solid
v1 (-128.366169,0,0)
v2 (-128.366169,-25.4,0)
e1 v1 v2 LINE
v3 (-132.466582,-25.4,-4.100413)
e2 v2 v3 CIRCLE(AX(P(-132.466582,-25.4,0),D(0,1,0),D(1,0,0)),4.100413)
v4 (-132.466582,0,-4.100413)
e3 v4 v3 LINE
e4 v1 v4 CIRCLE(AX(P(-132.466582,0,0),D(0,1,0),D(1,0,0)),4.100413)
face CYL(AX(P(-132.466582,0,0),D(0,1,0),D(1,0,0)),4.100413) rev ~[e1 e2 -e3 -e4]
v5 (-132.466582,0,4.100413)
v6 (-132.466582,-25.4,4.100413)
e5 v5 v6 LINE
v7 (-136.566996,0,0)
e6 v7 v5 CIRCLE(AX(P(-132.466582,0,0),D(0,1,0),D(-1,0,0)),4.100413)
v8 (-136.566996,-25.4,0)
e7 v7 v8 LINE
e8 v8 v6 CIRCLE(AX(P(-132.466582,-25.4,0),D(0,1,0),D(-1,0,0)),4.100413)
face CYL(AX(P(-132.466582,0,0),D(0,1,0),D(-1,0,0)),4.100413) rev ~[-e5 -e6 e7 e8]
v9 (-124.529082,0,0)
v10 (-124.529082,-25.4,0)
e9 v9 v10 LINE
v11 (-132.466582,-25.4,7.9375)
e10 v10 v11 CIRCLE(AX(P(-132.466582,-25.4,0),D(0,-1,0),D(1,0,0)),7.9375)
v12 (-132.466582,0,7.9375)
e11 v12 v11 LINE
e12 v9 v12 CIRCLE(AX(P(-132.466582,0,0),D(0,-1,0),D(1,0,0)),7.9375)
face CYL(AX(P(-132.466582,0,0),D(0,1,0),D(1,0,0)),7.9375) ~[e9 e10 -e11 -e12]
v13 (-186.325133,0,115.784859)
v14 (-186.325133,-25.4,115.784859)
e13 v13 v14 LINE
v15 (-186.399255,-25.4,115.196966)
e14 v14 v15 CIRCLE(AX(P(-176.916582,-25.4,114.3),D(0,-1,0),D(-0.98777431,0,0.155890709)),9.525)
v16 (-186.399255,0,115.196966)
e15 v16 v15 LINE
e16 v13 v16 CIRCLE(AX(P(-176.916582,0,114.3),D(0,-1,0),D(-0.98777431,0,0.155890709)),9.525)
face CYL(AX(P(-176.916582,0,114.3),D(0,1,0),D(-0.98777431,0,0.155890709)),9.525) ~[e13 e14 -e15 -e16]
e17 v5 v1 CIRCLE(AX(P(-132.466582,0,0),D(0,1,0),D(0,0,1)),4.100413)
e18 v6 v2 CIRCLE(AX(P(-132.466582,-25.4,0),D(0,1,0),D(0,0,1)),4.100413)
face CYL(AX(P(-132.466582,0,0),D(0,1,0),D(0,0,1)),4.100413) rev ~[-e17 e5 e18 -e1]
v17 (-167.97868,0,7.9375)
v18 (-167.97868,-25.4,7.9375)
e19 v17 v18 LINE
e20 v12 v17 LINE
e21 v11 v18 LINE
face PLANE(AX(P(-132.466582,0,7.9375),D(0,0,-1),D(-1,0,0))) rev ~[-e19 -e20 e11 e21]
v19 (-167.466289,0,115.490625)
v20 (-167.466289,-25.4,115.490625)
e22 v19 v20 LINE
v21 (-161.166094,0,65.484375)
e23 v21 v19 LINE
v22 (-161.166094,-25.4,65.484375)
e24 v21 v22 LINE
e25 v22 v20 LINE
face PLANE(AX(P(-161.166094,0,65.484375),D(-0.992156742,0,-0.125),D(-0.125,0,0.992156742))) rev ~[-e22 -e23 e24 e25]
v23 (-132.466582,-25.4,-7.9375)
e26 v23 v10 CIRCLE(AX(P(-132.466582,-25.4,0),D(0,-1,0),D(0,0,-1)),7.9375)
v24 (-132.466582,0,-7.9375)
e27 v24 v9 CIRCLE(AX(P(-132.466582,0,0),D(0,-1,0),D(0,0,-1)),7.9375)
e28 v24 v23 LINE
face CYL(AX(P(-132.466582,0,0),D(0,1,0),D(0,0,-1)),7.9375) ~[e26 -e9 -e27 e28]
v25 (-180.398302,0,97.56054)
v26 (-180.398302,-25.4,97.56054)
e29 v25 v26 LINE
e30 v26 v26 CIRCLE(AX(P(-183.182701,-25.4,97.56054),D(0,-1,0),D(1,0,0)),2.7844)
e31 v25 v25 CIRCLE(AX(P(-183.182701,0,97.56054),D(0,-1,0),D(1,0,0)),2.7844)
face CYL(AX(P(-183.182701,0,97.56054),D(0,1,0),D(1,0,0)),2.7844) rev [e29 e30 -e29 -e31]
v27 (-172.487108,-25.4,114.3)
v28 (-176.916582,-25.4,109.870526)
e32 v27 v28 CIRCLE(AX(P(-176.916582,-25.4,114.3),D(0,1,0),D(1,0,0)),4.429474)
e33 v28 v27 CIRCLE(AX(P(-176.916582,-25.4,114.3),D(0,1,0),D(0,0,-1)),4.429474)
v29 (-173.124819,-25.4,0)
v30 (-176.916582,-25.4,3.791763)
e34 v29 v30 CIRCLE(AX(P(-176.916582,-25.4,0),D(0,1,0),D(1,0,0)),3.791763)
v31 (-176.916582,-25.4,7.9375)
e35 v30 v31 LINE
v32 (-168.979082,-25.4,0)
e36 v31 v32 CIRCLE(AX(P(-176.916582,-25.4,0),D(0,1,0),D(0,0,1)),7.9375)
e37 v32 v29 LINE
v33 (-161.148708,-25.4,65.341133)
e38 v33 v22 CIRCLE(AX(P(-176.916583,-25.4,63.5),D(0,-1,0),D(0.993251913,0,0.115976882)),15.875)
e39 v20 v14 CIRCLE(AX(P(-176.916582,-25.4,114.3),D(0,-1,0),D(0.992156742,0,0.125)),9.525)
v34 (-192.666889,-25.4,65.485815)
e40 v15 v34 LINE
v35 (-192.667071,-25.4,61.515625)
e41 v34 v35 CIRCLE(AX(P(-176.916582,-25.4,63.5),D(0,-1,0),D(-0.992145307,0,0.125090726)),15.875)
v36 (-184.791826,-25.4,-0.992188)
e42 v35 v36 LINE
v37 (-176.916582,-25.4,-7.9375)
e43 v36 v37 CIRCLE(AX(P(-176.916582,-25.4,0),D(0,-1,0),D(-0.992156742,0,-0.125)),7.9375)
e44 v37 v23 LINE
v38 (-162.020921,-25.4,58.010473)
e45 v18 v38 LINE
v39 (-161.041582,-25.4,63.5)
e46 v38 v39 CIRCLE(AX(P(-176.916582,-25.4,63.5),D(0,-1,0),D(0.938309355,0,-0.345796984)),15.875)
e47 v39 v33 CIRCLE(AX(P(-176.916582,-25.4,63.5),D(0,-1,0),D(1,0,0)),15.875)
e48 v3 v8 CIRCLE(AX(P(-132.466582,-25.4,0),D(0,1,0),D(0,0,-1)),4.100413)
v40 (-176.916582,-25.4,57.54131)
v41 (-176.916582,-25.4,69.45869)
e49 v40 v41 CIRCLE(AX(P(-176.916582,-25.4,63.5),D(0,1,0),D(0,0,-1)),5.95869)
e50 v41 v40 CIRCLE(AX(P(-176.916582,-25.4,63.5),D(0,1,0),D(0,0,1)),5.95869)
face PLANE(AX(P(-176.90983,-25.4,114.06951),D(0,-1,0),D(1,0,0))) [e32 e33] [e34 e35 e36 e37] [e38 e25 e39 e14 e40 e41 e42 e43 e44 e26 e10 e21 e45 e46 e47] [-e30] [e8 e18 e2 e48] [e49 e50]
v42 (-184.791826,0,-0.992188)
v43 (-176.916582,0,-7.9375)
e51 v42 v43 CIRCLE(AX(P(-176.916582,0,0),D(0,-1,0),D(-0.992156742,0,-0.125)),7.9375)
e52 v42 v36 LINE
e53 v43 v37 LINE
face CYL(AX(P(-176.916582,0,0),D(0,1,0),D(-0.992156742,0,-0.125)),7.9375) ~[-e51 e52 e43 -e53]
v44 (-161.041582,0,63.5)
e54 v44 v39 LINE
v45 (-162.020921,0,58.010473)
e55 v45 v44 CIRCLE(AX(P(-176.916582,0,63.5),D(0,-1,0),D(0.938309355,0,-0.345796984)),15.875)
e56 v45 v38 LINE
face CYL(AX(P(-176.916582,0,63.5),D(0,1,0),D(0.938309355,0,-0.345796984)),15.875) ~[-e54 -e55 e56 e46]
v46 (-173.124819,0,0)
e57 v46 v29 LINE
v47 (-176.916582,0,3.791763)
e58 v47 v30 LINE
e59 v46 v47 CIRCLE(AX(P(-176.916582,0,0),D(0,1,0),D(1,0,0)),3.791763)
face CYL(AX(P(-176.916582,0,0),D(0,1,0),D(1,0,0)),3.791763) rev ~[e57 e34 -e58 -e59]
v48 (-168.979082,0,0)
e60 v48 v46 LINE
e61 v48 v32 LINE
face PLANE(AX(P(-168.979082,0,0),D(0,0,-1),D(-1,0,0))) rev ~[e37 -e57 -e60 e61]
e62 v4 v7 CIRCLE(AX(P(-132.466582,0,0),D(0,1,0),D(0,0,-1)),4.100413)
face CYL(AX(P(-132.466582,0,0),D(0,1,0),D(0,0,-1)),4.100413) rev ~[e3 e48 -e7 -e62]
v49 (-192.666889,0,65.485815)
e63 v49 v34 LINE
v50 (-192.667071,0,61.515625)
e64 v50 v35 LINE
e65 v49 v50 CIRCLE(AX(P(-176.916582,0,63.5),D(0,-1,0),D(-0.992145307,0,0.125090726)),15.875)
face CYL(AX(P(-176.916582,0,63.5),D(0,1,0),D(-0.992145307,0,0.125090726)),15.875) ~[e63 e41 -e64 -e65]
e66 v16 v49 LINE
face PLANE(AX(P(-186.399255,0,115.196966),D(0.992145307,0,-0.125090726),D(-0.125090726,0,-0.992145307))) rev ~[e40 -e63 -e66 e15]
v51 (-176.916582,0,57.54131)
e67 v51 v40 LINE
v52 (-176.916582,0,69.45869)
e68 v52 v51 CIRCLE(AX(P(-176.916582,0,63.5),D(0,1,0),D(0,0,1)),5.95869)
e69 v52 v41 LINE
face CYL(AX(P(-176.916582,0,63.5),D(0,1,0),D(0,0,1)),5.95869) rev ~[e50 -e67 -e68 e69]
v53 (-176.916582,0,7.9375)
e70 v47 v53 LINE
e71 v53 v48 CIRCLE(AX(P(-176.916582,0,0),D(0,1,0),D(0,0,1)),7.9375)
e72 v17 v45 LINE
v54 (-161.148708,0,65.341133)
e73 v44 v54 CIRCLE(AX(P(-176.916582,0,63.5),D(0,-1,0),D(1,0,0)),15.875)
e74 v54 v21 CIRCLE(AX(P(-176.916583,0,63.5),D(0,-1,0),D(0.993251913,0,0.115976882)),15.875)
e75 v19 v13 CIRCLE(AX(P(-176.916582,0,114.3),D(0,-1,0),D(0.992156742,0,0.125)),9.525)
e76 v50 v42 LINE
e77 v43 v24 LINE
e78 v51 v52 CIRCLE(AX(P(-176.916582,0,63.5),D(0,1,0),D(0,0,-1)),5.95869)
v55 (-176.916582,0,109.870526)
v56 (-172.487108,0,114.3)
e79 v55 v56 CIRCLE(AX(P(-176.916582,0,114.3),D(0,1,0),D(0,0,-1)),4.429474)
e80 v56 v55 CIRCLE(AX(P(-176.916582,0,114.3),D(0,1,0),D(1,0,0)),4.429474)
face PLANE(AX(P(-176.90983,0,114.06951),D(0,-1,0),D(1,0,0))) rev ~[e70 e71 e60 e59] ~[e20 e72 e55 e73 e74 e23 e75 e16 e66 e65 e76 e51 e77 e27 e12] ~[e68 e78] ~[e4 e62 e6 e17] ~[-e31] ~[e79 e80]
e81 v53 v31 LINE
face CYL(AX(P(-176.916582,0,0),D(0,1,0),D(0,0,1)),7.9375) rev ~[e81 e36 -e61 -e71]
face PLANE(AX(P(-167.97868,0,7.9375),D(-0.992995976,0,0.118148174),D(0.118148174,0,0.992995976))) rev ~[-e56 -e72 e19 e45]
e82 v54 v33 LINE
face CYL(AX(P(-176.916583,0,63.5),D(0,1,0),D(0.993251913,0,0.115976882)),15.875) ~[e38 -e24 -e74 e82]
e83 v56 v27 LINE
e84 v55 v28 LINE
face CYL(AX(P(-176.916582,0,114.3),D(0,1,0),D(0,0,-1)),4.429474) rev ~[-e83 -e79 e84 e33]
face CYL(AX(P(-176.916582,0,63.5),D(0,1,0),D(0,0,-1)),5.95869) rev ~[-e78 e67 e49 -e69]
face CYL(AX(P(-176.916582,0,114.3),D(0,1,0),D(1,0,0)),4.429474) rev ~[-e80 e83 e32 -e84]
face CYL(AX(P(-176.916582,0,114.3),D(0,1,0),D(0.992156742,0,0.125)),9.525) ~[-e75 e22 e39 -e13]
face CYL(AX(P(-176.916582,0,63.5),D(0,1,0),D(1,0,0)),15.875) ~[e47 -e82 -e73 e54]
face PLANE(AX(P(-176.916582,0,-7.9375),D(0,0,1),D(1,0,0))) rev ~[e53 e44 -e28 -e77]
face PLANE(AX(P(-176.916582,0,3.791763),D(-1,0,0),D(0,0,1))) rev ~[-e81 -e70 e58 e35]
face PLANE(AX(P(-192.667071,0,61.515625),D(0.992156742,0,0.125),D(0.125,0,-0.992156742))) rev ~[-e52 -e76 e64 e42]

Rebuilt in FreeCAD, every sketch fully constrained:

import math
import FreeCAD as App
import Part
import Sketcher

V = App.Vector
Q = App.Units.Quantity

doc = App.newDocument("Part")
params = doc.addObject("Spreadsheet::Sheet", "Params")
for row, (alias, value) in enumerate([
    ("sketch1_radius", "0.3125 in"),
    ("sketch1_radius2", "0.625 in"),
    ("sketch1_radius3", "0.375 in"),
    ("sketch1_width", "1.75 in"),
    ("pad1_length", "1 in"),
], start=1):
    params.set(f"A{row}", alias)
    params.set(f"B{row}", "=" + value)
    params.setAlias(f"B{row}", alias)

body = doc.addObject("PartDesign::Body", "Body")

# Sketch on XZ plane
sketch1 = body.newObject("Sketcher::SketchObject", "Sketch")
sketch1.AttachmentSupport = (doc.getObject("XZ_Plane"), [""])
sketch1.MapMode = "FlatFace"
sketch1.addGeometry([
    Part.LineSegment(V(-176.92, -7.94, 0), V(-132.47, -7.94, 0)),  # 0
    Part.ArcOfCircle(Part.Circle(V(-132.47, 0, 0), V(0, 0, 1), 7.94), math.radians(-90), math.radians(0)),  # 1
    Part.ArcOfCircle(Part.Circle(V(-132.47, 0, 0), V(0, 0, 1), 7.94), math.radians(0), math.radians(90)),  # 2
    Part.LineSegment(V(-132.47, 7.94, 0), V(-167.98, 7.94, 0)),  # 3
    Part.LineSegment(V(-167.98, 7.94, 0), V(-162.02, 58.01, 0)),  # 4
    Part.ArcOfCircle(Part.Circle(V(-176.92, 63.5, 0), V(0, 0, 1), 15.88), math.radians(-20), math.radians(0)),  # 5
    Part.ArcOfCircle(Part.Circle(V(-176.92, 63.5, 0), V(0, 0, 1), 15.88), math.radians(0), math.radians(6.66)),  # 6
    Part.ArcOfCircle(Part.Circle(V(-176.92, 63.5, 0), V(0, 0, 1), 15.88), math.radians(6.66), math.radians(7.18)),  # 7
    Part.LineSegment(V(-161.17, 65.48, 0), V(-167.47, 115.49, 0)),  # 8
    Part.ArcOfCircle(Part.Circle(V(-176.92, 114.3, 0), V(0, 0, 1), 9.53), math.radians(7), math.radians(171)),  # 9
    Part.ArcOfCircle(Part.Circle(V(-176.92, 114.3, 0), V(0, 0, 1), 9.52), math.radians(171.03), math.radians(174.6)),  # 10
    Part.LineSegment(V(-186.4, 115.2, 0), V(-192.67, 65.49, 0)),  # 11
    Part.ArcOfCircle(Part.Circle(V(-176.92, 63.5, 0), V(0, 0, 1), 15.88), math.radians(172.81), math.radians(187.18)),  # 12
    Part.LineSegment(V(-192.67, 61.52, 0), V(-184.79, -0.99, 0)),  # 13
    Part.ArcOfCircle(Part.Circle(V(-176.92, 0, 0), V(0, 0, 1), 7.94), math.radians(-173), math.radians(-90)),  # 14
    Part.ArcOfCircle(Part.Circle(V(-176.92, 0, 0), V(0, 0, 1), 7.94), math.radians(0), math.radians(90)),  # 15
    Part.LineSegment(V(-168.98, 0, 0), V(-173.12, 0, 0)),  # 16
    Part.ArcOfCircle(Part.Circle(V(-176.92, 0, 0), V(0, 0, 1), 3.79), math.radians(90), math.radians(360)),  # 17
    Part.LineSegment(V(-176.92, 3.79, 0), V(-176.92, 7.94, 0)),  # 18
    Part.ArcOfCircle(Part.Circle(V(-132.47, 0, 0), V(0, 0, 1), 4.1), math.radians(-90), math.radians(0)),  # 19
    Part.ArcOfCircle(Part.Circle(V(-132.47, 0, 0), V(0, 0, 1), 4.1), math.radians(180), math.radians(270)),  # 20
    Part.ArcOfCircle(Part.Circle(V(-132.47, 0, 0), V(0, 0, 1), 4.1), math.radians(90), math.radians(180)),  # 21
    Part.ArcOfCircle(Part.Circle(V(-132.47, 0, 0), V(0, 0, 1), 4.1), math.radians(0), math.radians(90)),  # 22
    Part.ArcOfCircle(Part.Circle(V(-176.92, 63.5, 0), V(0, 0, 1), 5.96), math.radians(-90), math.radians(90)),  # 23
    Part.ArcOfCircle(Part.Circle(V(-176.92, 63.5, 0), V(0, 0, 1), 5.96), math.radians(90), math.radians(270)),  # 24
    Part.Circle(V(-183.18, 97.56, 0), V(0, 0, 1), 2.78),  # 25
    Part.ArcOfCircle(Part.Circle(V(-176.92, 114.3, 0), V(0, 0, 1), 4.43), math.radians(0), math.radians(270)),  # 26
    Part.ArcOfCircle(Part.Circle(V(-176.92, 114.3, 0), V(0, 0, 1), 4.43), math.radians(-90), math.radians(0)),  # 27
], False)
sketch1.addConstraint([
    Sketcher.Constraint("Tangent", 0, 2, 1, 1),
    Sketcher.Constraint("Tangent", 1, 2, 2, 1),
    Sketcher.Constraint("Tangent", 2, 2, 3, 1),
    Sketcher.Constraint("Coincident", 3, 2, 4, 1),
    Sketcher.Constraint("Coincident", 4, 2, 5, 1),
    Sketcher.Constraint("Tangent", 5, 2, 6, 1),
    Sketcher.Constraint("Tangent", 6, 2, 7, 1),
    Sketcher.Constraint("Tangent", 7, 2, 8, 1),
    Sketcher.Constraint("Tangent", 8, 2, 9, 1),
    Sketcher.Constraint("Tangent", 9, 2, 10, 1),
    Sketcher.Constraint("Coincident", 10, 2, 11, 1),
    Sketcher.Constraint("Tangent", 11, 2, 12, 1),
    Sketcher.Constraint("Tangent", 12, 2, 13, 1),
    Sketcher.Constraint("Tangent", 13, 2, 14, 1),
    Sketcher.Constraint("Tangent", 14, 2, 0, 1),
    Sketcher.Constraint("Coincident", 15, 1, 16, 1),
    Sketcher.Constraint("Coincident", 16, 2, 17, 2),
    Sketcher.Constraint("Coincident", 17, 1, 18, 1),
    Sketcher.Constraint("Coincident", 18, 2, 15, 2),
    Sketcher.Constraint("Tangent", 19, 1, 20, 2),
    Sketcher.Constraint("Tangent", 20, 1, 21, 2),
    Sketcher.Constraint("Tangent", 21, 1, 22, 2),
    Sketcher.Constraint("Tangent", 22, 1, 19, 2),
    Sketcher.Constraint("Tangent", 23, 1, 24, 2),
    Sketcher.Constraint("Coincident", 24, 1, 23, 2),
    Sketcher.Constraint("Tangent", 26, 1, 27, 2),
    Sketcher.Constraint("Coincident", 27, 1, 26, 2),
    Sketcher.Constraint("Horizontal", 0),
    Sketcher.Constraint("Horizontal", 3),
    Sketcher.Constraint("Horizontal", 16),
    Sketcher.Constraint("Vertical", 18),
    Sketcher.Constraint("Coincident", 7, 3, 5, 3),
    Sketcher.Constraint("Coincident", 12, 3, 5, 3),
    Sketcher.Constraint("Coincident", 15, 3, 14, 3),
    Sketcher.Constraint("Coincident", 17, 3, 14, 3),
    Sketcher.Constraint("Coincident", 19, 3, 1, 3),
    Sketcher.Constraint("Coincident", 23, 3, 5, 3),
    Sketcher.Constraint("Coincident", 26, 3, 9, 3),
    Sketcher.Constraint("Equal", 1, 2),
    Sketcher.Constraint("Equal", 9, 10),
    Sketcher.Constraint("Equal", 7, 12),
    Sketcher.Constraint("Equal", 2, 14),
    Sketcher.Constraint("Equal", 14, 15),
    Sketcher.Constraint("Equal", 19, 20),
    Sketcher.Constraint("Symmetric", 14, 2, 18, 2, -1),
    Sketcher.Constraint("PointOnObject", 1, 2, -1),
    Sketcher.Constraint("PointOnObject", 15, 1, -1),
    Sketcher.Constraint("PointOnObject", 20, 1, -1),
    Sketcher.Constraint("PointOnObject", 22, 1, -1),
    Sketcher.Constraint("Parallel", 8, 13),
    Sketcher.Constraint("Horizontal", 24, 3, 5, 2),
    Sketcher.Constraint("Horizontal", 27, 3, 26, 1),
    Sketcher.Constraint("Vertical", 7, 3, 9, 3),
    Sketcher.Constraint("Vertical", 12, 3, 14, 3),
    Sketcher.Constraint("Vertical", 2, 2, 19, 1),
    Sketcher.Constraint("Vertical", 19, 1, 21, 1),
    Sketcher.Constraint("Vertical", 18, 2, 23, 1),
    Sketcher.Constraint("Vertical", 23, 1, 24, 1),
    Sketcher.Constraint("Vertical", 24, 1, 27, 1),
    Sketcher.Constraint("Radius", 1, Q("0.3125 in")),
    Sketcher.Constraint("Radius", 5, Q("0.625 in")),
    Sketcher.Constraint("Radius", 9, Q("0.375 in")),
    Sketcher.Constraint("DistanceY", 5, 3, 9, 3, Q("2 in")),
    Sketcher.Constraint("DistanceX", 0, 1, 0, 2, Q("1.75 in")),
    Sketcher.Constraint("Diameter", 25, 5.5688),
    Sketcher.Constraint("Radius", 23, 5.95869),
    Sketcher.Constraint("Radius", 17, 3.791763),
    Sketcher.Constraint("Radius", 19, 4.100413),
    Sketcher.Constraint("Radius", 26, 4.429474),
    Sketcher.Constraint("DistanceX", 25, 3, -1, 1, 183.182701),
    Sketcher.Constraint("Distance", 4, 50.426159),
    Sketcher.Constraint("Distance", 11, 50.104708),
    Sketcher.Constraint("DistanceX", 3, 2, 3, 1, 35.512098),
    Sketcher.Constraint("DistanceY", -1, 1, 25, 3, 97.56054),
    Sketcher.Constraint("DistanceX", 3, 2, -1, 1, 167.97868),
    Sketcher.Constraint("DistanceX", 6, 2, -1, 1, 161.148708),
    Sketcher.Constraint("DistanceY", -1, 1, 9, 2, 115.784859),
])
sketch1.setExpression("Constraints[59]", "Params.sketch1_radius")
sketch1.setExpression("Constraints[60]", "Params.sketch1_radius2")
sketch1.setExpression("Constraints[61]", "Params.sketch1_radius3")
sketch1.setExpression("Constraints[63]", "Params.sketch1_width")
pad1 = body.newObject("PartDesign::Pad", "Pad")
pad1.Profile = sketch1
pad1.setExpression("Length", "Params.pad1_length")

doc.recompute()
